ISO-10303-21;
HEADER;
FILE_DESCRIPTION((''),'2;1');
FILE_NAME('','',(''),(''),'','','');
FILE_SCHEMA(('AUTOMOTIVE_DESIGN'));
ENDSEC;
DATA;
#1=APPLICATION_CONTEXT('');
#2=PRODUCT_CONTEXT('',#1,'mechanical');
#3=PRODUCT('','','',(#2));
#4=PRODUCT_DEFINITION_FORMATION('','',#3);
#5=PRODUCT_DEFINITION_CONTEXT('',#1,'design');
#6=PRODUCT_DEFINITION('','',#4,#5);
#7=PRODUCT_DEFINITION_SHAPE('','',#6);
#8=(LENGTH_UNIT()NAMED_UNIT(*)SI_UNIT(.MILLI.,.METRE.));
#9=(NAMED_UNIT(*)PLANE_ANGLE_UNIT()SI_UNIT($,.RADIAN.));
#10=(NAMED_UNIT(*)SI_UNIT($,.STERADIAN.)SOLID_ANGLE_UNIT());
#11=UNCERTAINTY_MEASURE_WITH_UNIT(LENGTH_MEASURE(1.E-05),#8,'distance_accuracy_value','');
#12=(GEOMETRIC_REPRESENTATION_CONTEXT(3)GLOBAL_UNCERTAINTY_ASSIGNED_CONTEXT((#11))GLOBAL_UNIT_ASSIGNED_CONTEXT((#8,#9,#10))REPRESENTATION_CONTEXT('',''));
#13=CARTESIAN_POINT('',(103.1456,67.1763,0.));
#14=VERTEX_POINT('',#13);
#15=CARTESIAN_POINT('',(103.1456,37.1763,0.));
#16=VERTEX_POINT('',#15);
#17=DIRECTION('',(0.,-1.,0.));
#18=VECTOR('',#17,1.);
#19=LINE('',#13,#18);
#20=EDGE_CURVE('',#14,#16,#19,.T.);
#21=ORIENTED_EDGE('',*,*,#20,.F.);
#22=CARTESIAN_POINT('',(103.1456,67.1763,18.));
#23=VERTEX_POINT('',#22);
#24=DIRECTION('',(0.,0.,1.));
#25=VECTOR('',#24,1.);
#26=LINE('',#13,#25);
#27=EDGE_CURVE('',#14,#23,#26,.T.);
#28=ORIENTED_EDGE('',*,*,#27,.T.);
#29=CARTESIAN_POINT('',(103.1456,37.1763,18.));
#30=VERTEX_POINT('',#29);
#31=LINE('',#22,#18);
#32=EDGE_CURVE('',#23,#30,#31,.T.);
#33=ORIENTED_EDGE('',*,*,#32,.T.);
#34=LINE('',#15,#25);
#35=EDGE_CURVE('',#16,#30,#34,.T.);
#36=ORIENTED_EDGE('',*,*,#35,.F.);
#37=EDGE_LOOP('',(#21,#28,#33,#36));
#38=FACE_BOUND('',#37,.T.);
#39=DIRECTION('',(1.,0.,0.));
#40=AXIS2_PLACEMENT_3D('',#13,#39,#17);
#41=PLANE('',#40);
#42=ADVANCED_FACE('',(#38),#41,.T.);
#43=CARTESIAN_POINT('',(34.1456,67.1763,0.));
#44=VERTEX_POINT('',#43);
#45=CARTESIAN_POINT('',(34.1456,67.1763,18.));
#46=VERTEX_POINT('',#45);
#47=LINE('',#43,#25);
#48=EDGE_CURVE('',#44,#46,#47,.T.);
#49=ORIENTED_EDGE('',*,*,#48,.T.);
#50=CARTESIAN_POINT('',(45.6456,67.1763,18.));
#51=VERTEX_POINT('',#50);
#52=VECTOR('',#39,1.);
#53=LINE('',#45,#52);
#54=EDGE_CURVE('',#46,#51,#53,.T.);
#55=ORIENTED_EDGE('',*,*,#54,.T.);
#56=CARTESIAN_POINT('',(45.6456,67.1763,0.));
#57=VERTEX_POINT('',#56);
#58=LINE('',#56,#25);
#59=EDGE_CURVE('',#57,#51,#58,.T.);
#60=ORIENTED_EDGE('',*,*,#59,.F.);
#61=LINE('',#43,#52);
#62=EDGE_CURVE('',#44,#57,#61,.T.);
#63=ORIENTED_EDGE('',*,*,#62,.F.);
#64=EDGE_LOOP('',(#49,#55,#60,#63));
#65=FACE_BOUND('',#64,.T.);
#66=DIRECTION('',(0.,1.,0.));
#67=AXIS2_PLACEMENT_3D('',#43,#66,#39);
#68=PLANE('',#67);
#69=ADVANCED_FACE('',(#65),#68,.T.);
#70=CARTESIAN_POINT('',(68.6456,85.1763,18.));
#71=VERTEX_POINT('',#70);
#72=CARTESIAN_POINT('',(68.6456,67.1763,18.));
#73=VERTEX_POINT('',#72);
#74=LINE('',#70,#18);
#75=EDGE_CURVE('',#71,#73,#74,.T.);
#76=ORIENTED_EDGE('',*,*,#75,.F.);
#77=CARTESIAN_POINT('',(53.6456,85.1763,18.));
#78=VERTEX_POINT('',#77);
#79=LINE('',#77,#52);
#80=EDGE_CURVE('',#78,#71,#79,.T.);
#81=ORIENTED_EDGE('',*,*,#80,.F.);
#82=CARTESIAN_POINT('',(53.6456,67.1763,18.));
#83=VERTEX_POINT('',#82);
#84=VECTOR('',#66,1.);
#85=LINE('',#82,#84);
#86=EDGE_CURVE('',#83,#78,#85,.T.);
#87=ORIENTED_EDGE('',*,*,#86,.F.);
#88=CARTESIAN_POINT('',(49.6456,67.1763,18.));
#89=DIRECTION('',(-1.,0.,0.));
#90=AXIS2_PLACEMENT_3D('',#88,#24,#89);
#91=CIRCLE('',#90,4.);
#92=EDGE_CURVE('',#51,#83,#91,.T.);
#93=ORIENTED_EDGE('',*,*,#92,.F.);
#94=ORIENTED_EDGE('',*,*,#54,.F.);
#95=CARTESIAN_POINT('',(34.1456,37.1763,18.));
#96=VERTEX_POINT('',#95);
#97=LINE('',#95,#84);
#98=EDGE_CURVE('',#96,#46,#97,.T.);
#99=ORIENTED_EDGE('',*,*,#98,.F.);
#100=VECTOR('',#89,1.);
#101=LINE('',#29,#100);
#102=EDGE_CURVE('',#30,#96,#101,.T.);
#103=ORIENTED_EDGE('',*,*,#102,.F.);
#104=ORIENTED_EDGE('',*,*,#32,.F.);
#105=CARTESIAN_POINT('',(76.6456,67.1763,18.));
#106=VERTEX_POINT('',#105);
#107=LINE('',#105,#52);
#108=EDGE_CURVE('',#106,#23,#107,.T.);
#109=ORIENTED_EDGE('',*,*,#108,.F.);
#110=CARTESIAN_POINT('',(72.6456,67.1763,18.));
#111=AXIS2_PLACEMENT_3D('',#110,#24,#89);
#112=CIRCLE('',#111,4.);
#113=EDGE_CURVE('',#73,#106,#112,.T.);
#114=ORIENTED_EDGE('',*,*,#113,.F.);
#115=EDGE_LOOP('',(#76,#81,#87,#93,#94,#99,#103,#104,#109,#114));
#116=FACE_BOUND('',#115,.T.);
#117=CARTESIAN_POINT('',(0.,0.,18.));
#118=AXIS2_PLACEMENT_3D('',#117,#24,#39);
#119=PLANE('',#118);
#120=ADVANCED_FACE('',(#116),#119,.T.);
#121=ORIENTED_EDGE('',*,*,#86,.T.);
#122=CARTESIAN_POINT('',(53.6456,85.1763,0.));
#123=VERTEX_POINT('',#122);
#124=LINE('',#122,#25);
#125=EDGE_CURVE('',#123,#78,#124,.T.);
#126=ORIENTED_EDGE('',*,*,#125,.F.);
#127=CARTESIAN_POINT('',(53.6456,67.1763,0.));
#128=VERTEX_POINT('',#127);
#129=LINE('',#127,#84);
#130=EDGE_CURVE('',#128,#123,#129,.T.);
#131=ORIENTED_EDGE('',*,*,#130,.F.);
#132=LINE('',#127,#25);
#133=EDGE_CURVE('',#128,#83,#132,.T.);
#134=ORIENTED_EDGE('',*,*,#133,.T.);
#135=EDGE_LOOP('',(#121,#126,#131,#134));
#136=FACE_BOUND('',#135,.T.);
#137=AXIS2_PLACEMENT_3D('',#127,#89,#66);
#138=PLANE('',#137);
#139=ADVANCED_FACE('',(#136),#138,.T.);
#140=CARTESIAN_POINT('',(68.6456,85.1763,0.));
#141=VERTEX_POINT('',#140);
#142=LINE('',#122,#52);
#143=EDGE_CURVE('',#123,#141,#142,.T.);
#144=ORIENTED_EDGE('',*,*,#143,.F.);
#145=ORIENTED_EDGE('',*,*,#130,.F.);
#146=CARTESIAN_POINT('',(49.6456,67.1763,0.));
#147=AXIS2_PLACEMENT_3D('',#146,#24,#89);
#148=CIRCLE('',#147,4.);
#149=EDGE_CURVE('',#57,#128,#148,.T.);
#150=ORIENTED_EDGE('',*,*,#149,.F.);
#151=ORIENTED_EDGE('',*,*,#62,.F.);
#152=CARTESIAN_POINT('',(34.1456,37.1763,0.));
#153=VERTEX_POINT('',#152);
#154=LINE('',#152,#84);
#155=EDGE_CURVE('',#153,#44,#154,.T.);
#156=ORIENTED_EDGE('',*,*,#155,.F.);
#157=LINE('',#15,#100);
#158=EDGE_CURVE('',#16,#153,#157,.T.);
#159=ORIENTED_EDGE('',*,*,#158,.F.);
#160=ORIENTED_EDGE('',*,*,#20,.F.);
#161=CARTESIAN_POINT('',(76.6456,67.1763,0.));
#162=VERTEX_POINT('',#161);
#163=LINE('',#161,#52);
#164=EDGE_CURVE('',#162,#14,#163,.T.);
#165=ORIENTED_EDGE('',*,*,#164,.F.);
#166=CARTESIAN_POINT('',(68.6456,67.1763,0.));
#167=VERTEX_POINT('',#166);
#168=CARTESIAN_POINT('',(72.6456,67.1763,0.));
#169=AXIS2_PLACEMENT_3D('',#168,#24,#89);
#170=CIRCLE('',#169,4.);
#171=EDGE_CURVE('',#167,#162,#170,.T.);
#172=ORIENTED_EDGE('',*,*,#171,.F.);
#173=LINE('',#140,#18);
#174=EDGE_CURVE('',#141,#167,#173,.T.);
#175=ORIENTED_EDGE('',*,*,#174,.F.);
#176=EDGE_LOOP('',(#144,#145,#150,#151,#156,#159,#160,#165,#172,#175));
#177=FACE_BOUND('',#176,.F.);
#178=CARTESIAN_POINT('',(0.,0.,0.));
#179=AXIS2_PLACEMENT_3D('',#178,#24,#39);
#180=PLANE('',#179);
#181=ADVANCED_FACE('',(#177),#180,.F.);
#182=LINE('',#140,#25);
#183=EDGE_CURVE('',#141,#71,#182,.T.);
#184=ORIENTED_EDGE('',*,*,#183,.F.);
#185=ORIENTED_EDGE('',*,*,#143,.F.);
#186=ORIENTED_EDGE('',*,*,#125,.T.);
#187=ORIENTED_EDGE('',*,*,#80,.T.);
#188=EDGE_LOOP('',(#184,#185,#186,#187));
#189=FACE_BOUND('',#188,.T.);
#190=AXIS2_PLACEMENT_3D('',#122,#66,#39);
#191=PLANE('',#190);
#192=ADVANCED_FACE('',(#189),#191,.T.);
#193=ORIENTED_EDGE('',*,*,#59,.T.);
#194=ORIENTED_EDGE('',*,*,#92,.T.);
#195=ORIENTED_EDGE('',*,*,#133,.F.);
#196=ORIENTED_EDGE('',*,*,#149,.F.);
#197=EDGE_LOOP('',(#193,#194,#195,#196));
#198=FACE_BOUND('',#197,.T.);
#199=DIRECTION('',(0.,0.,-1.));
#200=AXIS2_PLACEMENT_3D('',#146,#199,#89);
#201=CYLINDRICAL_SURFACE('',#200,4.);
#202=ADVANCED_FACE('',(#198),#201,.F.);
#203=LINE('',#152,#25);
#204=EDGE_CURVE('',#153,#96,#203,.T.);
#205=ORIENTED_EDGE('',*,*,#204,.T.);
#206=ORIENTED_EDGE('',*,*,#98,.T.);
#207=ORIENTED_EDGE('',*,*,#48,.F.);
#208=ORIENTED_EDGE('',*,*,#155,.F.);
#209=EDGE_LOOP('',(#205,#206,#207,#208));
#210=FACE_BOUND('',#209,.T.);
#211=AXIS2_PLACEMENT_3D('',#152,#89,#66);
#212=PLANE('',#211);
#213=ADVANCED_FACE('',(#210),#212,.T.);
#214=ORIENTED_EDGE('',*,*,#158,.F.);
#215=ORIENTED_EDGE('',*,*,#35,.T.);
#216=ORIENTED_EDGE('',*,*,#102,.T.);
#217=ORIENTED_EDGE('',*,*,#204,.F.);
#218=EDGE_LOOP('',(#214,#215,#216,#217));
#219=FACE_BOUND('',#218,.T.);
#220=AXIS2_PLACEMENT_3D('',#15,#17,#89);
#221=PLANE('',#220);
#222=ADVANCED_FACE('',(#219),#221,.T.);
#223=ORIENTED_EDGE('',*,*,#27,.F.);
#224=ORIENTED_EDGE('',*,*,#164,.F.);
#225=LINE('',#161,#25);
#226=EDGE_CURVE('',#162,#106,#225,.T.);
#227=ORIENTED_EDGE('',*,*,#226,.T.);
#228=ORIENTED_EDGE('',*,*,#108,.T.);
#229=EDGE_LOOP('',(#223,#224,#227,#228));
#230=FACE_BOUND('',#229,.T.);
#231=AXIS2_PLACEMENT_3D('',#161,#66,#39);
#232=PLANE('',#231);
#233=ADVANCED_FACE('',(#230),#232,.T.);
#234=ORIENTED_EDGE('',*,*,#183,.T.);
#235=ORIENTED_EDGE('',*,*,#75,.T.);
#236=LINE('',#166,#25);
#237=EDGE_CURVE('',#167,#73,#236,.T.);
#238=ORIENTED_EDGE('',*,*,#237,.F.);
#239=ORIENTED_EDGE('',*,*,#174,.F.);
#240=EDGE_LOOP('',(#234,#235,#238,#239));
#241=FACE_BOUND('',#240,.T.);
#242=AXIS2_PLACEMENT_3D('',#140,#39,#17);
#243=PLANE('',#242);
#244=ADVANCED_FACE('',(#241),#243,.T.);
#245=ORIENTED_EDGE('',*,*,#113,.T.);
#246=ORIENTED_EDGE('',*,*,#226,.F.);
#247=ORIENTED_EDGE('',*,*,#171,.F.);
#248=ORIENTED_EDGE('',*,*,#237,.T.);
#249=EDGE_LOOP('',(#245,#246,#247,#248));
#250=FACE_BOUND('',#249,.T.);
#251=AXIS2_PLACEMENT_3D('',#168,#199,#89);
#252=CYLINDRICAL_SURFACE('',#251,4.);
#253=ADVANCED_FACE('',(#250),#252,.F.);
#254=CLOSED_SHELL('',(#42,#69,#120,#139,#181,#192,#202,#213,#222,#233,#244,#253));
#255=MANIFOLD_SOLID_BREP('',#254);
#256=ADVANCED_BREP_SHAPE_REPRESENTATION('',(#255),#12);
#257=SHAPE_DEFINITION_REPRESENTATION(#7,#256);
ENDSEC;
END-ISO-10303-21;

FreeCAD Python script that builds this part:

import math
import FreeCAD as App
import Part
import Sketcher
from FreeCAD import Vector
Q = App.Units.Quantity

doc = App.newDocument("Part")
params = doc.addObject("Spreadsheet::Sheet", "Params")
for row, (alias, value) in enumerate([
    ("sketch1_radius", "4 mm"),
    ("sketch1_width", "15 mm"),
    ("sketch1_width2", "69 mm"),
    ("sketch1_height", "18 mm"),
    ("sketch1_height2", "30 mm"),
    ("pad1_length", "18 mm"),
], start=1):
    params.set(f"A{row}", alias)
    params.set(f"B{row}", "=" + value)
    params.setAlias(f"B{row}", alias)

body = doc.addObject("PartDesign::Body", "Body")

# Sketch on XY plane
sketch1 = body.newObject("Sketcher::SketchObject", "Sketch")
sketch1.AttachmentSupport = (doc.getObject("XY_Plane"), [""])
sketch1.MapMode = "FlatFace"
sketch1.addGeometry(Part.ArcOfCircle(Part.Circle(Vector(72.6, 67.2, 0), Vector(0, 0, 1), 4), math.radians(180), math.radians(360)), False)
sketch1.addGeometry(Part.LineSegment(Vector(68.6, 67.2, 0), Vector(68.6, 85.2, 0)), False)
sketch1.addGeometry(Part.LineSegment(Vector(68.6, 85.2, 0), Vector(53.6, 85.2, 0)), False)
sketch1.addGeometry(Part.LineSegment(Vector(53.6, 85.2, 0), Vector(53.6, 67.2, 0)), False)
sketch1.addGeometry(Part.ArcOfCircle(Part.Circle(Vector(49.6, 67.2, 0), Vector(0, 0, 1), 4), math.radians(180), math.radians(360)), False)
sketch1.addGeometry(Part.LineSegment(Vector(45.6, 67.2, 0), Vector(34.1, 67.2, 0)), False)
sketch1.addGeometry(Part.LineSegment(Vector(34.1, 67.2, 0), Vector(34.1, 37.2, 0)), False)
sketch1.addGeometry(Part.LineSegment(Vector(34.1, 37.2, 0), Vector(103.1, 37.2, 0)), False)
sketch1.addGeometry(Part.LineSegment(Vector(103.1, 37.2, 0), Vector(103.1, 67.2, 0)), False)
sketch1.addGeometry(Part.LineSegment(Vector(103.1, 67.2, 0), Vector(76.6, 67.2, 0)), False)
sketch1.addConstraint(Sketcher.Constraint("Tangent", 0, 1, 1, 1))
sketch1.addConstraint(Sketcher.Constraint("Coincident", 1, 2, 2, 1))
sketch1.addConstraint(Sketcher.Constraint("Coincident", 2, 2, 3, 1))
sketch1.addConstraint(Sketcher.Constraint("Tangent", 3, 2, 4, 2))
sketch1.addConstraint(Sketcher.Constraint("Coincident", 4, 1, 5, 1))
sketch1.addConstraint(Sketcher.Constraint("Coincident", 5, 2, 6, 1))
sketch1.addConstraint(Sketcher.Constraint("Coincident", 6, 2, 7, 1))
sketch1.addConstraint(Sketcher.Constraint("Coincident", 7, 2, 8, 1))
sketch1.addConstraint(Sketcher.Constraint("Coincident", 8, 2, 9, 1))
sketch1.addConstraint(Sketcher.Constraint("Coincident", 9, 2, 0, 2))
sketch1.addConstraint(Sketcher.Constraint("Vertical", 1))
sketch1.addConstraint(Sketcher.Constraint("Horizontal", 2))
sketch1.addConstraint(Sketcher.Constraint("Vertical", 3))
sketch1.addConstraint(Sketcher.Constraint("Horizontal", 5))
sketch1.addConstraint(Sketcher.Constraint("Vertical", 6))
sketch1.addConstraint(Sketcher.Constraint("Horizontal", 7))
sketch1.addConstraint(Sketcher.Constraint("Vertical", 8))
sketch1.addConstraint(Sketcher.Constraint("Horizontal", 9))
sketch1.addConstraint(Sketcher.Constraint("Equal", 0, 4))
sketch1.addConstraint(Sketcher.Constraint("Horizontal", 0, 3, 4, 3))
sketch1.addConstraint(Sketcher.Constraint("Horizontal", 3, 2, 4, 1))
sketch1.addConstraint(Sketcher.Constraint("Horizontal", 5, 2, 8, 2))
sketch1.addConstraint(Sketcher.Constraint("Radius", 0, Q("4 mm")))
sketch1.addConstraint(Sketcher.Constraint("DistanceX", 2, 2, 2, 1, Q("15 mm")))
sketch1.addConstraint(Sketcher.Constraint("DistanceX", 7, 1, 7, 2, Q("69 mm")))
sketch1.addConstraint(Sketcher.Constraint("DistanceY", 1, 1, 1, 2, Q("18 mm")))
sketch1.addConstraint(Sketcher.Constraint("DistanceY", 6, 2, 6, 1, Q("30 mm")))
sketch1.addConstraint(Sketcher.Constraint("DistanceX", 5, 2, 5, 1, Q("11.5 mm")))
sketch1.addConstraint(Sketcher.Constraint("DistanceX", -1, 1, 0, 3, Q("72.6456 mm")))
sketch1.addConstraint(Sketcher.Constraint("DistanceY", -1, 1, 0, 3, Q("67.1763 mm")))
sketch1.setExpression("Constraints[22]", "Params.sketch1_radius")
sketch1.setExpression("Constraints[23]", "Params.sketch1_width")
sketch1.setExpression("Constraints[24]", "Params.sketch1_width2")
sketch1.setExpression("Constraints[25]", "Params.sketch1_height")
sketch1.setExpression("Constraints[26]", "Params.sketch1_height2")
pad1 = body.newObject("PartDesign::Pad", "Pad")
pad1.Profile = sketch1
pad1.setExpression("Length", "Params.pad1_length")

doc.recompute()
